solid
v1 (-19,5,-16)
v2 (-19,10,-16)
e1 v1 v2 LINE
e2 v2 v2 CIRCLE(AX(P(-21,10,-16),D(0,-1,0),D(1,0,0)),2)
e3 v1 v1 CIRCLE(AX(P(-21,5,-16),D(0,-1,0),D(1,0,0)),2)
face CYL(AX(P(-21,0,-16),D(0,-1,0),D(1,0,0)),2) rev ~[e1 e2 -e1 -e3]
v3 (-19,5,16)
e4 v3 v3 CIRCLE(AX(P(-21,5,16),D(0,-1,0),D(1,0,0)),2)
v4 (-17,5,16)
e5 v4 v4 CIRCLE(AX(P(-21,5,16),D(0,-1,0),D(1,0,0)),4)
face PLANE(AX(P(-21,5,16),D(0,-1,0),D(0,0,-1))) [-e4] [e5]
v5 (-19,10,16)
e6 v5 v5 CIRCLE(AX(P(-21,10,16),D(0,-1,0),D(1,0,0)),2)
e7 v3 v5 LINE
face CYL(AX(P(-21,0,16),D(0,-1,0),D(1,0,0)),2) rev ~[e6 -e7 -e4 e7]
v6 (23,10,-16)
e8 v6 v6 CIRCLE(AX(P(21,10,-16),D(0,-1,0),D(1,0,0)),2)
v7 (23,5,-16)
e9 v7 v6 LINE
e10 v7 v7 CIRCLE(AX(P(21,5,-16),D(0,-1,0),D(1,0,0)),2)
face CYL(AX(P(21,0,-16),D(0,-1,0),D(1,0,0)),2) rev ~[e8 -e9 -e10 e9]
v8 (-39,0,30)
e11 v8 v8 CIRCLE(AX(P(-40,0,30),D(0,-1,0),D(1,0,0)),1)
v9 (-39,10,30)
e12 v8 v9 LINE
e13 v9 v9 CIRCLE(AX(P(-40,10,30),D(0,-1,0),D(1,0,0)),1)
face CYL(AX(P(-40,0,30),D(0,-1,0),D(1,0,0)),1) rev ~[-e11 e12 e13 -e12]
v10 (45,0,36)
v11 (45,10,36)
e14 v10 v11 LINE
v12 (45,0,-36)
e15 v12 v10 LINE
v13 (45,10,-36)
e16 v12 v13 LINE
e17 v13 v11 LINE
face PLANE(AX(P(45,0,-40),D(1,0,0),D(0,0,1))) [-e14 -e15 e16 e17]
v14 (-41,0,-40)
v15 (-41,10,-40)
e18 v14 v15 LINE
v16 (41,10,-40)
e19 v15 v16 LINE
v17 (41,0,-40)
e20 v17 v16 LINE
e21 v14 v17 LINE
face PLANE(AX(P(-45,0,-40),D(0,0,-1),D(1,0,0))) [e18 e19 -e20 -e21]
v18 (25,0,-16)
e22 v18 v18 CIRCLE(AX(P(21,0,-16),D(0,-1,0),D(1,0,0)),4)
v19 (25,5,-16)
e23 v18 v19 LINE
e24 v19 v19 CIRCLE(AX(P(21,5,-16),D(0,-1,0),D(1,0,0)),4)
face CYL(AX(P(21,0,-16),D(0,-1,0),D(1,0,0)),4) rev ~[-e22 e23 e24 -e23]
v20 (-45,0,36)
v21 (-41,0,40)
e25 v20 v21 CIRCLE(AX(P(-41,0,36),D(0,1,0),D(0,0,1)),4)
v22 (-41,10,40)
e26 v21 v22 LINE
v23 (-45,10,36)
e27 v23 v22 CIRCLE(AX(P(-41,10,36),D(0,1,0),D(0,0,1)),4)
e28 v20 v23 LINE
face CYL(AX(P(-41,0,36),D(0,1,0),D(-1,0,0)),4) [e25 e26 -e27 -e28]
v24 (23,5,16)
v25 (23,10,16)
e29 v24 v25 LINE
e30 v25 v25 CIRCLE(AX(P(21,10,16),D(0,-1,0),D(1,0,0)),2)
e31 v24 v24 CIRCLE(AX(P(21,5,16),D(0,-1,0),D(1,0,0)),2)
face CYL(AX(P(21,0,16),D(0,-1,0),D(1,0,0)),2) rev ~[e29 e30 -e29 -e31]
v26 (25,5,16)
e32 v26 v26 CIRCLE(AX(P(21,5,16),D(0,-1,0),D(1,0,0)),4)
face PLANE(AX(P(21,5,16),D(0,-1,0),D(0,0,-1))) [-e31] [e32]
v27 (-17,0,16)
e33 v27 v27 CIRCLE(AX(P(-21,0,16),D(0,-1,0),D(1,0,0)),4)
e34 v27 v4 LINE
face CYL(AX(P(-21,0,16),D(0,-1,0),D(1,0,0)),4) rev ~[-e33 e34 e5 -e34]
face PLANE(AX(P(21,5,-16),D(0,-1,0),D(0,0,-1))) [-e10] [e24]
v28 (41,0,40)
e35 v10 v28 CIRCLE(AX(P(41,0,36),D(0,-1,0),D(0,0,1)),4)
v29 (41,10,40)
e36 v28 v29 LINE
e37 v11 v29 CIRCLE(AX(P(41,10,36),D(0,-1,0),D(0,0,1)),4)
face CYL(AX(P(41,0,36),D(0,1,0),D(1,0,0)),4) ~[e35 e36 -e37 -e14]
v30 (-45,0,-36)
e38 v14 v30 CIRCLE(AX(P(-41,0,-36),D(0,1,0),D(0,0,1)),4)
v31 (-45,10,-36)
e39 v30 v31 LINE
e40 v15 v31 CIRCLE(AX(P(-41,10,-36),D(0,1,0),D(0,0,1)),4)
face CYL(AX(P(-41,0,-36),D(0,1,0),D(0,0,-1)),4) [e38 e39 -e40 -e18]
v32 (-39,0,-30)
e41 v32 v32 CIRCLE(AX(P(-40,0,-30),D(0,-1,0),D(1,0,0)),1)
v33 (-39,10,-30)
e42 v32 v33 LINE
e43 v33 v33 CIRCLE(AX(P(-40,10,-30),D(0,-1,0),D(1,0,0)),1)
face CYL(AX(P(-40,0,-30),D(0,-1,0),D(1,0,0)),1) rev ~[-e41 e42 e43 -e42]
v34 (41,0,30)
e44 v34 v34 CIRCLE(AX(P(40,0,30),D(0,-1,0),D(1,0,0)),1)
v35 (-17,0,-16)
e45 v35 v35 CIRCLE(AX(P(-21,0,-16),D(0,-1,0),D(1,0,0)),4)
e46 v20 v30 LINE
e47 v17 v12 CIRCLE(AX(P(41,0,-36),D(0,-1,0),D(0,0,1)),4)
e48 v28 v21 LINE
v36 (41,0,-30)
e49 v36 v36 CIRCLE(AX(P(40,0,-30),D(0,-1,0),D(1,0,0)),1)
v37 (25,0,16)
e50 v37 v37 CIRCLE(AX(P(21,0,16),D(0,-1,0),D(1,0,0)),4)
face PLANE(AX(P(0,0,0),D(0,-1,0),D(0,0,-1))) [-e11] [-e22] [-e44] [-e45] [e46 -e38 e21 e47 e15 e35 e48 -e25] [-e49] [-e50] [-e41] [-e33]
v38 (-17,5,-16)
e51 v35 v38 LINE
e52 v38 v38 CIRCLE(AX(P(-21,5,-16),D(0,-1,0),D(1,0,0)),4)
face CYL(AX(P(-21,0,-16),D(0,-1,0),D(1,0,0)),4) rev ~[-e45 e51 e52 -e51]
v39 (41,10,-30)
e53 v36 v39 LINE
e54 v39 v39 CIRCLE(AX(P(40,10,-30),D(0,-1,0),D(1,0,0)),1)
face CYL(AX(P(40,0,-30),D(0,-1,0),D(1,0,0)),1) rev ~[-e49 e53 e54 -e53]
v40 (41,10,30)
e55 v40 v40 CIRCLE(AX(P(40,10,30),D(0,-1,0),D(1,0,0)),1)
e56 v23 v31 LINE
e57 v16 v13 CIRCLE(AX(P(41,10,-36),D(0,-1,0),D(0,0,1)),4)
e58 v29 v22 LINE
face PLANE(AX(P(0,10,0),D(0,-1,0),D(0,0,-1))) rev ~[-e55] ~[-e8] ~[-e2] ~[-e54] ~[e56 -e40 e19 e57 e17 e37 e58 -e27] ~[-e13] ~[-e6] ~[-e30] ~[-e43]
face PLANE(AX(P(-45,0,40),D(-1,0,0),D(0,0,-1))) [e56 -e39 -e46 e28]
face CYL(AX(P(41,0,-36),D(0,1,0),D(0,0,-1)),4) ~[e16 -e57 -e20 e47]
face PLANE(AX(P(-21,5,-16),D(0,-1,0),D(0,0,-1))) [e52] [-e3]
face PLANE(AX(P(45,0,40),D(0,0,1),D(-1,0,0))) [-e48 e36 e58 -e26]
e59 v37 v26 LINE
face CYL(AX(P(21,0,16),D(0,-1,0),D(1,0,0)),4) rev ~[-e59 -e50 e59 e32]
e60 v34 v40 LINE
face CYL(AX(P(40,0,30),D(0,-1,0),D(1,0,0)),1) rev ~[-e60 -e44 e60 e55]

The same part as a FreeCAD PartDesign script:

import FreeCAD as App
import Part
import Sketcher
from FreeCAD import Vector
Q = App.Units.Quantity


def edges_at(feature, points):
    """Names of the edges that pass closest to the given points."""
    edges = feature.Shape.Edges
    near = lambda p: min(range(len(edges)), key=lambda i: edges[i].distToShape(Part.Vertex(*p))[0])
    return sorted({f"Edge{near(p) + 1}" for p in points})


def add_polygon(sketch, points):
    """Adds a closed chain of lines whose ends are joined by coincident constraints."""
    first, n = sketch.GeometryCount, len(points)
    for a, b in zip(points, points[1:] + points[:1]):
        sketch.addGeometry(Part.LineSegment(App.Vector(*a, 0), App.Vector(*b, 0)), False)
    for i in range(n):
        sketch.addConstraint(Sketcher.Constraint("Coincident", first + i, 2, first + (i + 1) % n, 1))

doc = App.newDocument("Part")
body = doc.addObject("PartDesign::Body", "Body")

sketch1 = body.newObject("Sketcher::SketchObject", "Sketch")
sketch1.AttachmentSupport = (doc.getObject("XZ_Plane"), [""])
sketch1.MapMode = "FlatFace"
add_polygon(sketch1, [(-45, 40), (-45, -40), (45, -40), (45, 40)])
sketch1.addConstraint([
    Sketcher.Constraint("Vertical", 0),
    Sketcher.Constraint("Horizontal", 1),
    Sketcher.Constraint("Vertical", 2),
    Sketcher.Constraint("Horizontal", 3),
    Sketcher.Constraint("Symmetric", 0, 2, 2, 2, -1, 1),
    Sketcher.Constraint("DistanceX", 0, 2, -1, 1, Q("45 mm")),
    Sketcher.Constraint("DistanceY", 0, 2, 0, 1, Q("80 mm")),
])
pad1 = body.newObject("PartDesign::Pad", "Pad")
pad1.Profile = sketch1
pad1.Length = 10
pad1.Reversed = True

sketch2 = body.newObject("Sketcher::SketchObject", "Sketch001")
sketch2.AttachmentSupport = (doc.getObject("XZ_Plane"), [""])
sketch2.MapMode = "FlatFace"
sketch2.addGeometry([
    Part.Circle(Vector(-40, 30, 0), Vector(0, 0, 1), 1),
    Part.Circle(Vector(-40, -30, 0), Vector(0, 0, 1), 1),
    Part.Circle(Vector(40, -30, 0), Vector(0, 0, 1), 1),
    Part.Circle(Vector(40, 30, 0), Vector(0, 0, 1), 1),
], False)
sketch2.addConstraint([
    Sketcher.Constraint("Equal", 0, 1),
    Sketcher.Constraint("Equal", 1, 2),
    Sketcher.Constraint("Equal", 2, 3),
    Sketcher.Constraint("Symmetric", 0, 3, 2, 3, -1, 1),
    Sketcher.Constraint("Symmetric", 1, 3, 3, 3, -1, 1),
    Sketcher.Constraint("Symmetric", 1, 3, 2, 3, -2),
    Sketcher.Constraint("Diameter", 0, Q("2 mm")),
    Sketcher.Constraint("DistanceX", 0, 3, -1, 1, Q("40 mm")),
    Sketcher.Constraint("DistanceY", -1, 1, 0, 3, Q("30 mm")),
])
pocket1 = body.newObject("PartDesign::Pocket", "Pocket")
pocket1.Profile = sketch2
pocket1.Type = "ThroughAll"

sketch3 = body.newObject("Sketcher::SketchObject", "Sketch002")
sketch3.AttachmentSupport = (doc.getObject("XZ_Plane"), [""])
sketch3.MapMode = "FlatFace"
sketch3.addGeometry([
    Part.Circle(Vector(-21, 16, 0), Vector(0, 0, 1), 4),
    Part.Circle(Vector(-21, -16, 0), Vector(0, 0, 1), 4),
    Part.Circle(Vector(21, -16, 0), Vector(0, 0, 1), 4),
    Part.Circle(Vector(21, 16, 0), Vector(0, 0, 1), 4),
], False)
sketch3.addConstraint([
    Sketcher.Constraint("Equal", 0, 1),
    Sketcher.Constraint("Equal", 1, 2),
    Sketcher.Constraint("Equal", 2, 3),
    Sketcher.Constraint("Symmetric", 0, 3, 2, 3, -1, 1),
    Sketcher.Constraint("Symmetric", 1, 3, 3, 3, -1, 1),
    Sketcher.Constraint("Symmetric", 1, 3, 2, 3, -2),
    Sketcher.Constraint("Diameter", 0, Q("8 mm")),
    Sketcher.Constraint("DistanceX", 0, 3, -1, 1, Q("21 mm")),
    Sketcher.Constraint("DistanceY", -1, 1, 0, 3, Q("16 mm")),
])
pocket2 = body.newObject("PartDesign::Pocket", "Pocket001")
pocket2.Profile = sketch3
pocket2.Length = 5

sketch4 = body.newObject("Sketcher::SketchObject", "Sketch003")
sketch4.AttachmentSupport = (doc.getObject("XZ_Plane"), [""])
sketch4.MapMode = "FlatFace"
sketch4.addGeometry([
    Part.Circle(Vector(-21, 16, 0), Vector(0, 0, 1), 2),
    Part.Circle(Vector(-21, -16, 0), Vector(0, 0, 1), 2),
    Part.Circle(Vector(21, -16, 0), Vector(0, 0, 1), 2),
    Part.Circle(Vector(21, 16, 0), Vector(0, 0, 1), 2),
], False)
sketch4.addConstraint([
    Sketcher.Constraint("Equal", 0, 1),
    Sketcher.Constraint("Equal", 1, 2),
    Sketcher.Constraint("Equal", 2, 3),
    Sketcher.Constraint("Symmetric", 0, 3, 2, 3, -1, 1),
    Sketcher.Constraint("Symmetric", 1, 3, 3, 3, -1, 1),
    Sketcher.Constraint("Symmetric", 1, 3, 2, 3, -2),
    Sketcher.Constraint("Diameter", 0, Q("4 mm")),
    Sketcher.Constraint("DistanceX", 0, 3, -1, 1, Q("21 mm")),
    Sketcher.Constraint("DistanceY", -1, 1, 0, 3, Q("16 mm")),
])
pocket3 = body.newObject("PartDesign::Pocket", "Pocket002")
pocket3.Profile = sketch4
pocket3.Type = "ThroughAll"
doc.recompute()

fillet = body.newObject("PartDesign::Fillet", "Fillet")
fillet.Base = (pocket3, edges_at(pocket3, [
    (-45, 5, 40),
    (45, 5, 40),
    (45, 5, -40),
    (-45, 5, -40),
]))
fillet.Radius = 4

doc.recompute()
